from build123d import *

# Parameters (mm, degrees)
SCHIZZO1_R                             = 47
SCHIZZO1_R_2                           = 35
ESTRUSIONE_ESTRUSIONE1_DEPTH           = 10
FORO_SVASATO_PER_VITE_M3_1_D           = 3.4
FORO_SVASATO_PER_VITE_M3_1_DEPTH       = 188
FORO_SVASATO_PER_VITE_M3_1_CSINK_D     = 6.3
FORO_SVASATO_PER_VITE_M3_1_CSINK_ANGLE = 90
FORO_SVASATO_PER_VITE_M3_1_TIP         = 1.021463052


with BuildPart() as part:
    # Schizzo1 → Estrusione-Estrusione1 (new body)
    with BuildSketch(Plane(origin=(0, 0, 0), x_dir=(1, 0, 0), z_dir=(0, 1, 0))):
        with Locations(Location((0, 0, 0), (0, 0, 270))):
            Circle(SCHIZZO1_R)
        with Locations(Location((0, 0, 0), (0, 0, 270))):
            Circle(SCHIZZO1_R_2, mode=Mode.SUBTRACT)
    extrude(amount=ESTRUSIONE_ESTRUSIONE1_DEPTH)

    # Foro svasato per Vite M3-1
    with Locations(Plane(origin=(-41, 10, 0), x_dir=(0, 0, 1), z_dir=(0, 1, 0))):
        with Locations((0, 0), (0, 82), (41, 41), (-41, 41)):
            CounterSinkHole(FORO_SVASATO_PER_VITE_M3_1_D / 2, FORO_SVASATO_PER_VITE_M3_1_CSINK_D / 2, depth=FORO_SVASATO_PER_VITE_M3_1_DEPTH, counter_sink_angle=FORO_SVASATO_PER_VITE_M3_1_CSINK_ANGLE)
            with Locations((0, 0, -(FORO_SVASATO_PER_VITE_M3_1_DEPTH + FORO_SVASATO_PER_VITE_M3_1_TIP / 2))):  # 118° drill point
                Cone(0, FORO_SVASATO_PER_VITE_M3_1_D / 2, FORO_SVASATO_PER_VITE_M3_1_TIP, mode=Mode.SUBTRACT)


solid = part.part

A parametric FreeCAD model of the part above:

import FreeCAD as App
import Part
import Sketcher
from FreeCAD import Vector

doc = App.newDocument("Part")
body = doc.addObject("PartDesign::Body", "Body")

sketch1 = body.newObject("Sketcher::SketchObject", "Sketch")
sketch1.AttachmentSupport = (doc.getObject("XZ_Plane"), [""])
sketch1.MapMode = "FlatFace"
sketch1.addGeometry([
    Part.Circle(Vector(0, 0, 0), Vector(0, 0, 1), 47),
    Part.Circle(Vector(0, 0, 0), Vector(0, 0, 1), 35),
], False)
sketch1.addConstraint([
    Sketcher.Constraint("Coincident", 0, 3, -1, 1),
    Sketcher.Constraint("Coincident", 1, 3, -1, 1),
    Sketcher.Constraint("Diameter", 0, 94.0),
    Sketcher.Constraint("Diameter", 1, 70.0),
])
pad1 = body.newObject("PartDesign::Pad", "Pad")
pad1.Profile = sketch1
pad1.Length = 10
pad1.Reversed = True

sketch2 = body.newObject("Sketcher::SketchObject", "Sketch001")
sketch2.AttachmentSupport = (doc.getObject("XZ_Plane"), [""])
sketch2.MapMode = "FlatFace"
sketch2.AttachmentOffset = App.Placement(Vector(0, 0, -10), App.Rotation())
sketch2.addGeometry([
    Part.Circle(Vector(-41, 0, 0), Vector(0, 0, 1), 1.7),
    Part.Circle(Vector(41, 0, 0), Vector(0, 0, 1), 1.7),
    Part.Circle(Vector(0, 41, 0), Vector(0, 0, 1), 1.7),
    Part.Circle(Vector(0, -41, 0), Vector(0, 0, 1), 1.7),
], False)
sketch2.addConstraint([
    Sketcher.Constraint("Equal", 0, 1),
    Sketcher.Constraint("Equal", 1, 2),
    Sketcher.Constraint("Equal", 2, 3),
    Sketcher.Constraint("Symmetric", 0, 3, 1, 3, -1, 1),
    Sketcher.Constraint("Symmetric", 2, 3, 3, 3, -1, 1),
    Sketcher.Constraint("PointOnObject", 0, 3, -1),
    Sketcher.Constraint("PointOnObject", 2, 3, -2),
    Sketcher.Constraint("Diameter", 0, 3.4),
    Sketcher.Constraint("DistanceX", 0, 3, -1, 1, 41.0),
    Sketcher.Constraint("DistanceY", -1, 1, 2, 3, 41.0),
])
doc.recompute()
hole = body.newObject("PartDesign::Hole", "Hole")
hole.Profile = sketch2
hole.ThreadType = "None"
hole.Diameter = 3.4
hole.DepthType = "Dimension"
hole.Depth = 188
hole.DrillPoint = "Angled"
hole.DrillPointAngle = 118
hole.HoleCutType = "Countersink"
hole.HoleCutDiameter = 6.3
hole.HoleCutCountersinkAngle = 90
hole.Reversed = True

doc.recompute()
